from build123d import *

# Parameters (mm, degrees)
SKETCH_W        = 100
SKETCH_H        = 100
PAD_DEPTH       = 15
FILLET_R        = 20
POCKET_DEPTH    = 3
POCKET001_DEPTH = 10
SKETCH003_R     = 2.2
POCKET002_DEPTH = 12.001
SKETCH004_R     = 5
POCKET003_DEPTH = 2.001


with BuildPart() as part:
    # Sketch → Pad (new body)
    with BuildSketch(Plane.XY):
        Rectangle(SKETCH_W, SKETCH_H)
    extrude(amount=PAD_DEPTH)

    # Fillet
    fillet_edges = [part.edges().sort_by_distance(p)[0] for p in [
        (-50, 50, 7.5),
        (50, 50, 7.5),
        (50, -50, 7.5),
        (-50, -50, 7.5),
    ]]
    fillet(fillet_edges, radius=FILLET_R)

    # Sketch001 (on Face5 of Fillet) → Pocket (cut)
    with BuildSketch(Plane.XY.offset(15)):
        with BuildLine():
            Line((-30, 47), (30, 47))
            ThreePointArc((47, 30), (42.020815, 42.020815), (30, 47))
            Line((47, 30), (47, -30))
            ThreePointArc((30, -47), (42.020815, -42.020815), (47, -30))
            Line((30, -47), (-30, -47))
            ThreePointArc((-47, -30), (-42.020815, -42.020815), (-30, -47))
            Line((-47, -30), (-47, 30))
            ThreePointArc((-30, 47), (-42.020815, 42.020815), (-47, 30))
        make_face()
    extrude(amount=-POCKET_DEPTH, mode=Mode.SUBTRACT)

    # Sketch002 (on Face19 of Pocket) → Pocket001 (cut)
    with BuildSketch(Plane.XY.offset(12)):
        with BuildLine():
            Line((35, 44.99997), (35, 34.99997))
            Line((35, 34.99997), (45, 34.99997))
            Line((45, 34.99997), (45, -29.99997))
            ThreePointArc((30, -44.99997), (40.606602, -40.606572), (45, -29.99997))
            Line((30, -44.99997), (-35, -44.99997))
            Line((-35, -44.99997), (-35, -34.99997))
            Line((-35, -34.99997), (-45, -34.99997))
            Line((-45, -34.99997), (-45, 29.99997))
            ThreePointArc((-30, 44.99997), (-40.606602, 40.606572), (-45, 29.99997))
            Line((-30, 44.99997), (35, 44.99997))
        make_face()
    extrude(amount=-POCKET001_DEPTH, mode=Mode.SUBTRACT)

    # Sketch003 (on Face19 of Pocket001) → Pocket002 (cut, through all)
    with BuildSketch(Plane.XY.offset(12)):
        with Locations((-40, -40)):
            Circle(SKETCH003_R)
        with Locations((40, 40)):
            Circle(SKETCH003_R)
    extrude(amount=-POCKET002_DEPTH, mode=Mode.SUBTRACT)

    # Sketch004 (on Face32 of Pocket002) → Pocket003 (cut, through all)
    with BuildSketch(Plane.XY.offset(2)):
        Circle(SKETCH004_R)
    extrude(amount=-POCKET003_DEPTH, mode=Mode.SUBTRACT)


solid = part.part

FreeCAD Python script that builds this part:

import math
import FreeCAD as App
import Part
import Sketcher
from FreeCAD import Vector
Q = App.Units.Quantity


def edges_at(feature, points):
    """Names of the edges that pass closest to the given points."""
    edges = feature.Shape.Edges
    near = lambda p: min(range(len(edges)), key=lambda i: edges[i].distToShape(Part.Vertex(*p))[0])
    return sorted({f"Edge{near(p) + 1}" for p in points})


def add_polygon(sketch, points):
    """Adds a closed chain of lines whose ends are joined by coincident constraints."""
    first, n = sketch.GeometryCount, len(points)
    for a, b in zip(points, points[1:] + points[:1]):
        sketch.addGeometry(Part.LineSegment(App.Vector(*a, 0), App.Vector(*b, 0)), False)
    for i in range(n):
        sketch.addConstraint(Sketcher.Constraint("Coincident", first + i, 2, first + (i + 1) % n, 1))

doc = App.newDocument("Part")
params = doc.addObject("Spreadsheet::Sheet", "Params")
for row, (alias, value) in enumerate([
    ("sketch1_width", "100 mm"),
    ("pad1_length", "15 mm"),
    ("fillet_radius", "20 mm"),
    ("sketch2_radius", "17.000001 mm"),
    ("sketch2_width", "60 mm"),
    ("pocket1_length", "3 mm"),
    ("sketch3_radius", "14.999999 mm"),
    ("sketch3_width", "65 mm"),
    ("sketch3_width2", "10 mm"),
    ("pocket2_length", "10 mm"),
    ("sketch4_diameter", "4.4 mm"),
    ("sketch5_diameter", "10 mm"),
], start=1):
    params.set(f"A{row}", alias)
    params.set(f"B{row}", "=" + value)
    params.setAlias(f"B{row}", alias)

body = doc.addObject("PartDesign::Body", "Body")

# Sketch on XY plane
sketch1 = body.newObject("Sketcher::SketchObject", "Sketch")
sketch1.AttachmentSupport = (doc.getObject("XY_Plane"), [""])
sketch1.MapMode = "FlatFace"
add_polygon(sketch1, [(-50, 50), (-50, -50), (50, -50), (50, 50)])  # lines 0-3
sketch1.addConstraint([
    Sketcher.Constraint("Vertical", 0),
    Sketcher.Constraint("Horizontal", 1),
    Sketcher.Constraint("Vertical", 2),
    Sketcher.Constraint("Horizontal", 3),
    Sketcher.Constraint("Symmetric", 0, 2, 2, 2, -1, 1),
    Sketcher.Constraint("Equal", 3, 0),
    Sketcher.Constraint("DistanceX", 1, 1, 1, 2, Q("100 mm")),
])
sketch1.setExpression("Constraints[10]", "Params.sketch1_width")
pad1 = body.newObject("PartDesign::Pad", "Pad")
pad1.Profile = sketch1
pad1.setExpression("Length", "Params.pad1_length")
doc.recompute()

fillet = body.newObject("PartDesign::Fillet", "Fillet")
fillet.Base = (pad1, edges_at(pad1, [
    (-50, 50, 7.5),
    (50, 50, 7.5),
    (50, -50, 7.5),
    (-50, -50, 7.5),
]))
fillet.setExpression("Radius", "Params.fillet_radius")

# Sketch on XY plane
sketch2 = body.newObject("Sketcher::SketchObject", "Sketch001")
sketch2.AttachmentSupport = (doc.getObject("XY_Plane"), [""])
sketch2.MapMode = "FlatFace"
sketch2.AttachmentOffset = App.Placement(Vector(0, 0, 15), App.Rotation())
sketch2.addGeometry([
    Part.LineSegment(Vector(30, 47, 0), Vector(-30, 47, 0)),  # 0
    Part.ArcOfCircle(Part.Circle(Vector(-29.999999, 29.999999, 0), Vector(0, 0, 1), 17.000001), math.radians(90.000003), math.radians(179.999997)),  # 1
    Part.LineSegment(Vector(-47, 30, 0), Vector(-47, -30, 0)),  # 2
    Part.ArcOfCircle(Part.Circle(Vector(-29.999999, -29.999999, 0), Vector(0, 0, 1), 17.000001), math.radians(-179.999997), math.radians(-90.000003)),  # 3
    Part.LineSegment(Vector(-30, -47, 0), Vector(30, -47, 0)),  # 4
    Part.ArcOfCircle(Part.Circle(Vector(29.999999, -29.999999, 0), Vector(0, 0, 1), 17.000001), math.radians(-89.999997), math.radians(-0.000003)),  # 5
    Part.LineSegment(Vector(47, -30, 0), Vector(47, 30, 0)),  # 6
    Part.ArcOfCircle(Part.Circle(Vector(29.999999, 29.999999, 0), Vector(0, 0, 1), 17.000001), math.radians(0.000003), math.radians(89.999997)),  # 7
], False)
sketch2.addConstraint([
    Sketcher.Constraint("Tangent", 0, 2, 1, 1),
    Sketcher.Constraint("Tangent", 1, 2, 2, 1),
    Sketcher.Constraint("Tangent", 2, 2, 3, 1),
    Sketcher.Constraint("Tangent", 3, 2, 4, 1),
    Sketcher.Constraint("Tangent", 4, 2, 5, 1),
    Sketcher.Constraint("Tangent", 5, 2, 6, 1),
    Sketcher.Constraint("Tangent", 6, 2, 7, 1),
    Sketcher.Constraint("Tangent", 7, 2, 0, 1),
    Sketcher.Constraint("Horizontal", 0),
    Sketcher.Constraint("Vertical", 2),
    Sketcher.Constraint("Horizontal", 4),
    Sketcher.Constraint("Vertical", 6),
    Sketcher.Constraint("Equal", 1, 3),
    Sketcher.Constraint("Equal", 3, 5),
    Sketcher.Constraint("Equal", 5, 7),
    Sketcher.Constraint("Symmetric", 1, 3, 5, 3, -1, 1),
    Sketcher.Constraint("Equal", 4, 2),
    Sketcher.Constraint("Radius", 1, Q("17.000001 mm")),
    Sketcher.Constraint("DistanceX", 0, 2, 0, 1, Q("60 mm")),
])
sketch2.setExpression("Constraints[17]", "Params.sketch2_radius")
sketch2.setExpression("Constraints[18]", "Params.sketch2_width")
pocket1 = body.newObject("PartDesign::Pocket", "Pocket")
pocket1.Profile = sketch2
pocket1.setExpression("Length", "Params.pocket1_length")

# Sketch on XY plane
sketch3 = body.newObject("Sketcher::SketchObject", "Sketch002")
sketch3.AttachmentSupport = (doc.getObject("XY_Plane"), [""])
sketch3.MapMode = "FlatFace"
sketch3.AttachmentOffset = App.Placement(Vector(0, 0, 12), App.Rotation())
sketch3.addGeometry([
    Part.LineSegment(Vector(35, 34.99997, 0), Vector(35, 44.99997, 0)),  # 0
    Part.LineSegment(Vector(35, 44.99997, 0), Vector(-30, 44.99997, 0)),  # 1
    Part.ArcOfCircle(Part.Circle(Vector(-30.000001, 29.999971, 0), Vector(0, 0, 1), 14.999999), math.radians(89.999996), math.radians(180.000004)),  # 2
    Part.LineSegment(Vector(-45, 29.99997, 0), Vector(-45, -34.99997, 0)),  # 3
    Part.LineSegment(Vector(-45, -34.99997, 0), Vector(-35, -34.99997, 0)),  # 4
    Part.LineSegment(Vector(-35, -34.99997, 0), Vector(-35, -44.99997, 0)),  # 5
    Part.LineSegment(Vector(-35, -44.99997, 0), Vector(30, -44.99997, 0)),  # 6
    Part.ArcOfCircle(Part.Circle(Vector(30.000001, -29.999971, 0), Vector(0, 0, 1), 14.999999), math.radians(-90.000004), math.radians(0.000004)),  # 7
    Part.LineSegment(Vector(45, -29.99997, 0), Vector(45, 34.99997, 0)),  # 8
    Part.LineSegment(Vector(45, 34.99997, 0), Vector(35, 34.99997, 0)),  # 9
], False)
sketch3.addConstraint([
    Sketcher.Constraint("Coincident", 0, 2, 1, 1),
    Sketcher.Constraint("Tangent", 1, 2, 2, 1),
    Sketcher.Constraint("Tangent", 2, 2, 3, 1),
    Sketcher.Constraint("Coincident", 3, 2, 4, 1),
    Sketcher.Constraint("Coincident", 4, 2, 5, 1),
    Sketcher.Constraint("Coincident", 5, 2, 6, 1),
    Sketcher.Constraint("Tangent", 6, 2, 7, 1),
    Sketcher.Constraint("Tangent", 7, 2, 8, 1),
    Sketcher.Constraint("Coincident", 8, 2, 9, 1),
    Sketcher.Constraint("Coincident", 9, 2, 0, 1),
    Sketcher.Constraint("Vertical", 0),
    Sketcher.Constraint("Horizontal", 1),
    Sketcher.Constraint("Vertical", 3),
    Sketcher.Constraint("Horizontal", 4),
    Sketcher.Constraint("Vertical", 5),
    Sketcher.Constraint("Horizontal", 6),
    Sketcher.Constraint("Vertical", 8),
    Sketcher.Constraint("Horizontal", 9),
    Sketcher.Constraint("Equal", 2, 7),
    Sketcher.Constraint("Symmetric", 2, 3, 7, 3, -1, 1),
    Sketcher.Constraint("Symmetric", 4, 2, 9, 2, -1, 1),
    Sketcher.Constraint("Equal", 9, 0),
    Sketcher.Constraint("Radius", 2, Q("14.999999 mm")),
    Sketcher.Constraint("DistanceX", 1, 2, 1, 1, Q("65 mm")),
    Sketcher.Constraint("DistanceX", 4, 1, 4, 2, Q("10 mm")),
    Sketcher.Constraint("DistanceY", 3, 2, 3, 1, Q("64.99994 mm")),
])
sketch3.setExpression("Constraints[22]", "Params.sketch3_radius")
sketch3.setExpression("Constraints[23]", "Params.sketch3_width")
sketch3.setExpression("Constraints[24]", "Params.sketch3_width2")
pocket2 = body.newObject("PartDesign::Pocket", "Pocket001")
pocket2.Profile = sketch3
pocket2.setExpression("Length", "Params.pocket2_length")

# Sketch on XY plane
sketch4 = body.newObject("Sketcher::SketchObject", "Sketch003")
sketch4.AttachmentSupport = (doc.getObject("XY_Plane"), [""])
sketch4.MapMode = "FlatFace"
sketch4.AttachmentOffset = App.Placement(Vector(0, 0, 12), App.Rotation())
sketch4.addGeometry([
    Part.Circle(Vector(-40, -40, 0), Vector(0, 0, 1), 2.2),
    Part.Circle(Vector(40, 40, 0), Vector(0, 0, 1), 2.2),
], False)
sketch4.addConstraint([
    Sketcher.Constraint("Equal", 0, 1),
    Sketcher.Constraint("Symmetric", 0, 3, 1, 3, -1, 1),
    Sketcher.Constraint("Diameter", 0, Q("4.4 mm")),
    Sketcher.Constraint("DistanceX", 0, 3, -1, 1, Q("40 mm")),
    Sketcher.Constraint("DistanceY", 0, 3, -1, 1, Q("40 mm")),
])
sketch4.setExpression("Constraints[2]", "Params.sketch4_diameter")
pocket3 = body.newObject("PartDesign::Pocket", "Pocket002")
pocket3.Profile = sketch4
pocket3.Type = "ThroughAll"

# Sketch on XY plane
sketch5 = body.newObject("Sketcher::SketchObject", "Sketch004")
sketch5.AttachmentSupport = (doc.getObject("XY_Plane"), [""])
sketch5.MapMode = "FlatFace"
sketch5.AttachmentOffset = App.Placement(Vector(0, 0, 2), App.Rotation())
sketch5.addGeometry(Part.Circle(Vector(0, 0, 0), Vector(0, 0, 1), 5), False)
sketch5.addConstraint([
    Sketcher.Constraint("Coincident", 0, 3, -1, 1),
    Sketcher.Constraint("Diameter", 0, Q("10 mm")),
])
sketch5.setExpression("Constraints[1]", "Params.sketch5_diameter")
pocket4 = body.newObject("PartDesign::Pocket", "Pocket003")
pocket4.Profile = sketch5
pocket4.Type = "ThroughAll"

doc.recompute()
